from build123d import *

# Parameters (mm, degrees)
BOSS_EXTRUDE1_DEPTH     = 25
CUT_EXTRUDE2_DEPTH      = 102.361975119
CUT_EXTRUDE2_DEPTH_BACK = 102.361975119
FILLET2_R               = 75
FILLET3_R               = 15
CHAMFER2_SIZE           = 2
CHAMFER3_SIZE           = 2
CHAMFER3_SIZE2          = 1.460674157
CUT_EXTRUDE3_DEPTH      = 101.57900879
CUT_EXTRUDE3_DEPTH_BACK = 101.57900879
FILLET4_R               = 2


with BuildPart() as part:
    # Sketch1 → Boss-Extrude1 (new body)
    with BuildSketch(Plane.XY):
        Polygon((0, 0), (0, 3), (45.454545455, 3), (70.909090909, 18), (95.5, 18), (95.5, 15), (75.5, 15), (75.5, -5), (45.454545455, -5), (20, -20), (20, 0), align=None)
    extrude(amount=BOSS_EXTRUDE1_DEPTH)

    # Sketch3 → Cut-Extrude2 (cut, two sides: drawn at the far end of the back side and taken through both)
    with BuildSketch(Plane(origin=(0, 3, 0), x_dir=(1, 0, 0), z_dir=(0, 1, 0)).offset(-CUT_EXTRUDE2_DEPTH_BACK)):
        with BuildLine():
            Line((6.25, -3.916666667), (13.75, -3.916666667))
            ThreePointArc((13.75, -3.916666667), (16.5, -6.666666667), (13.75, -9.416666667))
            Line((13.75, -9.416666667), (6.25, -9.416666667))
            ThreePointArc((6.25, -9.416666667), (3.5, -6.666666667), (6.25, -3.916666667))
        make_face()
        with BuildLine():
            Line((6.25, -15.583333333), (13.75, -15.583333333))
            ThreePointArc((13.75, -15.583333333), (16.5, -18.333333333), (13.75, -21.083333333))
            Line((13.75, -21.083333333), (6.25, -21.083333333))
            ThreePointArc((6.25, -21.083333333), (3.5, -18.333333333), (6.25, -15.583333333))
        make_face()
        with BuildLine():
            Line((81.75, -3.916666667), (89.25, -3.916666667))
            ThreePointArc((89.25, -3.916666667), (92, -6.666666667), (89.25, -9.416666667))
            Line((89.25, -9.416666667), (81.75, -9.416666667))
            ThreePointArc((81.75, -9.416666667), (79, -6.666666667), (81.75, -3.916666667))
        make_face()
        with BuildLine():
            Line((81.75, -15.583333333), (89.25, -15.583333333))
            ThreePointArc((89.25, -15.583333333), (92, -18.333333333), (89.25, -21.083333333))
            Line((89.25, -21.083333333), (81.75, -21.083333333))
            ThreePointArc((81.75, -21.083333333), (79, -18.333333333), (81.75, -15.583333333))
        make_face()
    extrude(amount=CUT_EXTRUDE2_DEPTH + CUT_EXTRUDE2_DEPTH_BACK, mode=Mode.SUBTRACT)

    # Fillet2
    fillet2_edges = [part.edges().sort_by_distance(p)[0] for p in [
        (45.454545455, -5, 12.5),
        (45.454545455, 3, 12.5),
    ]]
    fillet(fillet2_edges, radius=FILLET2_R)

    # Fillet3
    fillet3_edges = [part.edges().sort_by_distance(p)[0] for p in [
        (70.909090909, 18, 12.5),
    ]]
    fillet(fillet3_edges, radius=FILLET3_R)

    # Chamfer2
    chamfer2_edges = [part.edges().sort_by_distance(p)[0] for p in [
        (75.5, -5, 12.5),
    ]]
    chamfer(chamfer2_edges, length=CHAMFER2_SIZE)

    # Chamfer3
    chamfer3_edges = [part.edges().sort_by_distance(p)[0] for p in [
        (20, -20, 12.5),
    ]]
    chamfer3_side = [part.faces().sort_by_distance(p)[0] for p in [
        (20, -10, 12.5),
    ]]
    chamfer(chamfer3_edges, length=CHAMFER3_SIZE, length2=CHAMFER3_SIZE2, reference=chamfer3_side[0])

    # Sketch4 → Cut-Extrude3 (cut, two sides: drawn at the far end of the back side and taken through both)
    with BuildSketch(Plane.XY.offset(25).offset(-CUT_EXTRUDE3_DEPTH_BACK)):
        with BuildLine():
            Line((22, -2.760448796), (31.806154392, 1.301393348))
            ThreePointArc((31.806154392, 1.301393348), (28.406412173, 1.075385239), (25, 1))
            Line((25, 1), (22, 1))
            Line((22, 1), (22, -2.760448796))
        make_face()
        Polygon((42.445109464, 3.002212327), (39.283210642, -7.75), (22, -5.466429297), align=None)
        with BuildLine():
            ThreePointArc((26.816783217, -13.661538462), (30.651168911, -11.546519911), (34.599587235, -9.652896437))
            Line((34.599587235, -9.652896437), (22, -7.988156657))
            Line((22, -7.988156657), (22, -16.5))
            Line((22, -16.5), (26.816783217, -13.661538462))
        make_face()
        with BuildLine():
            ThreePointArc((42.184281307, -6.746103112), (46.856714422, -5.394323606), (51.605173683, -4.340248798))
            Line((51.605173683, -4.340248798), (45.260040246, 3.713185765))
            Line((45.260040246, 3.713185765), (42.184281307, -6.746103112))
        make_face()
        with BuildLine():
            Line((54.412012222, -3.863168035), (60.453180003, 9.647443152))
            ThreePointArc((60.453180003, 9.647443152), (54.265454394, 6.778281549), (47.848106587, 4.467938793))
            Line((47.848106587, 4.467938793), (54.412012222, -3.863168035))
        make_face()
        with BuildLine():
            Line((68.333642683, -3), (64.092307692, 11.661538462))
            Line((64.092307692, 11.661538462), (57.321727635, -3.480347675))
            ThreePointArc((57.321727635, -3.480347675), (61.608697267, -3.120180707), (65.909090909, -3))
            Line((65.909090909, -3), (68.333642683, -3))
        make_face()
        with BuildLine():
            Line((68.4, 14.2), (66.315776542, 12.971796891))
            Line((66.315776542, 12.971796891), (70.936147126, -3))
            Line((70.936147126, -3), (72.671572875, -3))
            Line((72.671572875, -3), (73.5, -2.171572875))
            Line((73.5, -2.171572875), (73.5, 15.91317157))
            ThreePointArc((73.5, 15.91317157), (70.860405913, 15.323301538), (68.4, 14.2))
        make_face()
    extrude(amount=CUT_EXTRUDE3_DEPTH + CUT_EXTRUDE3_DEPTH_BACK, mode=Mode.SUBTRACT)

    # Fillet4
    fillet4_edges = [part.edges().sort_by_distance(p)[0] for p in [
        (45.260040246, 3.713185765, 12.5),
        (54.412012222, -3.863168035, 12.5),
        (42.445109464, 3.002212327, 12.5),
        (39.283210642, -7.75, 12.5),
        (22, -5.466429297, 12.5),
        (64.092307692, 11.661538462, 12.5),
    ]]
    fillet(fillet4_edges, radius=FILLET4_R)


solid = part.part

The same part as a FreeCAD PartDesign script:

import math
import FreeCAD as App
import Part
import Sketcher
Q = App.Units.Quantity


def edges_at(feature, points):
    """Names of the edges that pass closest to the given points."""
    edges = feature.Shape.Edges
    near = lambda p: min(range(len(edges)), key=lambda i: edges[i].distToShape(Part.Vertex(*p))[0])
    return sorted({f"Edge{near(p) + 1}" for p in points})

doc = App.newDocument("Part")
body = doc.addObject("PartDesign::Body", "Body")

sketch1 = doc.addObject("Sketcher::SketchObject", "Sketch")
body.addObject(sketch1)
sketch1.AttachmentSupport = (doc.XY_Plane, [""])
sketch1.MapMode = "FlatFace"
sketch1.addGeometry([
    Part.LineSegment(App.Vector(0, 3, 0), App.Vector(0, 0, 0)),
    Part.LineSegment(App.Vector(0, 0, 0), App.Vector(20, 0, 0)),
    Part.LineSegment(App.Vector(20, 0, 0), App.Vector(20, -20, 0)),
    Part.LineSegment(App.Vector(20, -20, 0), App.Vector(45.5, -5, 0)),
    Part.LineSegment(App.Vector(45.5, -5, 0), App.Vector(75.5, -5, 0)),
    Part.LineSegment(App.Vector(75.5, -5, 0), App.Vector(75.5, 15, 0)),
    Part.LineSegment(App.Vector(75.5, 15, 0), App.Vector(95.5, 15, 0)),
    Part.LineSegment(App.Vector(95.5, 15, 0), App.Vector(95.5, 18, 0)),
    Part.LineSegment(App.Vector(95.5, 18, 0), App.Vector(70.9, 18, 0)),
    Part.LineSegment(App.Vector(70.9, 18, 0), App.Vector(45.5, 3, 0)),
    Part.LineSegment(App.Vector(45.5, 3, 0), App.Vector(0, 3, 0)),
], False)
sketch1.addConstraint([
    Sketcher.Constraint("Coincident", 0, 2, 1, 1),
    Sketcher.Constraint("Coincident", 1, 2, 2, 1),
    Sketcher.Constraint("Coincident", 2, 2, 3, 1),
    Sketcher.Constraint("Coincident", 3, 2, 4, 1),
    Sketcher.Constraint("Coincident", 4, 2, 5, 1),
    Sketcher.Constraint("Coincident", 5, 2, 6, 1),
    Sketcher.Constraint("Coincident", 6, 2, 7, 1),
    Sketcher.Constraint("Coincident", 7, 2, 8, 1),
    Sketcher.Constraint("Coincident", 8, 2, 9, 1),
    Sketcher.Constraint("Coincident", 9, 2, 10, 1),
    Sketcher.Constraint("Coincident", 10, 2, 0, 1),
    Sketcher.Constraint("Vertical", 0),
    Sketcher.Constraint("Horizontal", 1),
    Sketcher.Constraint("Vertical", 2),
    Sketcher.Constraint("Horizontal", 4),
    Sketcher.Constraint("Vertical", 5),
    Sketcher.Constraint("Horizontal", 6),
    Sketcher.Constraint("Vertical", 7),
    Sketcher.Constraint("Horizontal", 8),
    Sketcher.Constraint("Horizontal", 10),
    Sketcher.Constraint("Coincident", 0, 2, -1, 1),
    Sketcher.Constraint("Parallel", 3, 9),
    Sketcher.Constraint("Vertical", 3, 2, 9, 2),
    Sketcher.Constraint("Equal", 1, 6),
    Sketcher.Constraint("Equal", 6, 2),
    Sketcher.Constraint("Equal", 2, 5),
    Sketcher.Constraint("Equal", 0, 7),
    Sketcher.Constraint("DistanceX", 1, 1, 1, 2, 20.0),
    Sketcher.Constraint("DistanceY", 0, 2, 0, 1, 3.0),
    Sketcher.Constraint("DistanceY", 3, 2, -1, 1, 5.0),
    Sketcher.Constraint("DistanceX", -1, 1, 4, 2, 75.5),
    Sketcher.Constraint("DistanceX", 8, 2, 8, 1, 24.590909),
])
pad1 = doc.addObject("PartDesign::Pad", "Pad")
body.addObject(pad1)
pad1.Profile = sketch1
pad1.Length = 25

sketch2 = doc.addObject("Sketcher::SketchObject", "Sketch001")
body.addObject(sketch2)
sketch2.AttachmentSupport = (doc.XZ_Plane, [""])
sketch2.MapMode = "FlatFace"
sketch2.AttachmentOffset = App.Placement(App.Vector(0, 0, -3), App.Rotation())
sketch2.addGeometry([
    Part.LineSegment(App.Vector(13.8, 3.9, 0), App.Vector(6.2, 3.9, 0)),
    Part.ArcOfCircle(Part.Circle(App.Vector(6.2, 6.7, 0), App.Vector(0, 0, 1), 2.8), math.radians(90), math.radians(270)),
    Part.LineSegment(App.Vector(6.2, 9.4, 0), App.Vector(13.8, 9.4, 0)),
    Part.ArcOfCircle(Part.Circle(App.Vector(13.8, 6.7, 0), App.Vector(0, 0, 1), 2.8), math.radians(-90), math.radians(90)),
    Part.LineSegment(App.Vector(13.8, 15.6, 0), App.Vector(6.2, 15.6, 0)),
    Part.ArcOfCircle(Part.Circle(App.Vector(6.2, 18.3, 0), App.Vector(0, 0, 1), 2.8), math.radians(90), math.radians(270)),
    Part.LineSegment(App.Vector(6.2, 21.1, 0), App.Vector(13.8, 21.1, 0)),
    Part.ArcOfCircle(Part.Circle(App.Vector(13.8, 18.3, 0), App.Vector(0, 0, 1), 2.8), math.radians(-90), math.radians(90)),
    Part.LineSegment(App.Vector(89.2, 3.9, 0), App.Vector(81.8, 3.9, 0)),
    Part.ArcOfCircle(Part.Circle(App.Vector(81.8, 6.7, 0), App.Vector(0, 0, 1), 2.8), math.radians(90), math.radians(270)),
    Part.LineSegment(App.Vector(81.8, 9.4, 0), App.Vector(89.2, 9.4, 0)),
    Part.ArcOfCircle(Part.Circle(App.Vector(89.2, 6.7, 0), App.Vector(0, 0, 1), 2.8), math.radians(-90), math.radians(90)),
    Part.LineSegment(App.Vector(89.2, 15.6, 0), App.Vector(81.8, 15.6, 0)),
    Part.ArcOfCircle(Part.Circle(App.Vector(81.8, 18.3, 0), App.Vector(0, 0, 1), 2.8), math.radians(90), math.radians(270)),
    Part.LineSegment(App.Vector(81.8, 21.1, 0), App.Vector(89.2, 21.1, 0)),
    Part.ArcOfCircle(Part.Circle(App.Vector(89.2, 18.3, 0), App.Vector(0, 0, 1), 2.8), math.radians(-90), math.radians(90)),
], False)
sketch2.addConstraint([
    Sketcher.Constraint("Tangent", 0, 2, 1, 2),
    Sketcher.Constraint("Tangent", 1, 1, 2, 1),
    Sketcher.Constraint("Tangent", 2, 2, 3, 2),
    Sketcher.Constraint("Tangent", 3, 1, 0, 1),
    Sketcher.Constraint("Tangent", 4, 2, 5, 2),
    Sketcher.Constraint("Tangent", 5, 1, 6, 1),
    Sketcher.Constraint("Tangent", 6, 2, 7, 2),
    Sketcher.Constraint("Tangent", 7, 1, 4, 1),
    Sketcher.Constraint("Tangent", 8, 2, 9, 2),
    Sketcher.Constraint("Tangent", 9, 1, 10, 1),
    Sketcher.Constraint("Tangent", 10, 2, 11, 2),
    Sketcher.Constraint("Tangent", 11, 1, 8, 1),
    Sketcher.Constraint("Tangent", 12, 2, 13, 2),
    Sketcher.Constraint("Tangent", 13, 1, 14, 1),
    Sketcher.Constraint("Tangent", 14, 2, 15, 2),
    Sketcher.Constraint("Tangent", 15, 1, 12, 1),
    Sketcher.Constraint("Horizontal", 0),
    Sketcher.Constraint("Horizontal", 2),
    Sketcher.Constraint("Horizontal", 4),
    Sketcher.Constraint("Horizontal", 6),
    Sketcher.Constraint("Horizontal", 8),
    Sketcher.Constraint("Horizontal", 10),
    Sketcher.Constraint("Horizontal", 12),
    Sketcher.Constraint("Horizontal", 14),
    Sketcher.Constraint("Equal", 3, 5),
    Sketcher.Constraint("Equal", 7, 9),
    Sketcher.Constraint("Equal", 11, 13),
    Sketcher.Constraint("Horizontal", 3, 3, 9, 3),
    Sketcher.Constraint("Horizontal", 7, 3, 13, 3),
    Sketcher.Constraint("Vertical", 1, 3, 5, 3),
    Sketcher.Constraint("Vertical", 3, 3, 7, 3),
    Sketcher.Constraint("Vertical", 9, 3, 13, 3),
    Sketcher.Constraint("Vertical", 11, 3, 15, 3),
    Sketcher.Constraint("Equal", 6, 8),
    Sketcher.Constraint("Radius", 1, 2.75),
    Sketcher.Constraint("DistanceX", 0, 2, 0, 1, 7.5),
    Sketcher.Constraint("DistanceX", 3, 3, 9, 3, 68.0),
    Sketcher.Constraint("DistanceX", -1, 1, 1, 3, 6.25),
    Sketcher.Constraint("DistanceY", -1, 1, 1, 3, 6.666667),
    Sketcher.Constraint("DistanceY", -1, 1, 5, 3, 18.333333),
])
pocket1 = doc.addObject("PartDesign::Pocket", "Pocket")
body.addObject(pocket1)
pocket1.Profile = sketch2
pocket1.Type = "ThroughAll"
pocket1.Midplane = True
doc.recompute()

fillet = doc.addObject("PartDesign::Fillet", "Fillet")
body.addObject(fillet)
fillet.Base = (pocket1, edges_at(pocket1, [(45.455, -5, 12.5), (45.455, 3, 12.5)]))
fillet.Radius = 75
doc.recompute()

fillet2 = doc.addObject("PartDesign::Fillet", "Fillet001")
body.addObject(fillet2)
fillet2.Base = (fillet, edges_at(fillet, [(70.909, 18, 12.5)]))
fillet2.Radius = 15
doc.recompute()

chamfer = doc.addObject("PartDesign::Chamfer", "Chamfer")
body.addObject(chamfer)
chamfer.Base = (fillet2, edges_at(fillet2, [(75.5, -5, 12.5)]))
chamfer.Size = 2
doc.recompute()

chamfer2 = doc.addObject("PartDesign::Chamfer", "Chamfer001")
body.addObject(chamfer2)
chamfer2.Base = (chamfer, edges_at(chamfer, [(20, -20, 12.5)]))
chamfer2.ChamferType = "Two distances"
chamfer2.Size = 2
chamfer2.Size2 = 1.460674
chamfer2.FlipDirection = True

sketch3 = doc.addObject("Sketcher::SketchObject", "Sketch002")
body.addObject(sketch3)
sketch3.AttachmentSupport = (doc.XY_Plane, [""])
sketch3.MapMode = "FlatFace"
sketch3.AttachmentOffset = App.Placement(App.Vector(0, 0, 25), App.Rotation())
sketch3.addGeometry([
    Part.LineSegment(App.Vector(22, -2.8, 0), App.Vector(31.8, 1.3, 0)),
    Part.ArcOfCircle(Part.Circle(App.Vector(25, 78, 0), App.Vector(0, 0, 1), 77), math.radians(-90), math.radians(-84.93)),
    Part.LineSegment(App.Vector(25, 1, 0), App.Vector(22, 1, 0)),
    Part.LineSegment(App.Vector(22, 1, 0), App.Vector(22, -2.8, 0)),
    Part.LineSegment(App.Vector(39.3, -7.8, 0), App.Vector(42.4, 3, 0)),
    Part.LineSegment(App.Vector(42.4, 3, 0), App.Vector(22, -5.5, 0)),
    Part.LineSegment(App.Vector(22, -5.5, 0), App.Vector(39.3, -7.8, 0)),
    Part.ArcOfCircle(Part.Circle(App.Vector(65.9, -80, 0), App.Vector(0, 0, 1), 77), math.radians(113.99), math.radians(120.51)),
    Part.LineSegment(App.Vector(34.6, -9.7, 0), App.Vector(22, -8, 0)),
    Part.LineSegment(App.Vector(22, -8, 0), App.Vector(22, -16.5, 0)),
    Part.LineSegment(App.Vector(22, -16.5, 0), App.Vector(26.8, -13.7, 0)),
    Part.ArcOfCircle(Part.Circle(App.Vector(65.9, -80, 0), App.Vector(0, 0, 1), 77), math.radians(100.71), math.radians(107.95)),
    Part.LineSegment(App.Vector(51.6, -4.3, 0), App.Vector(45.3, 3.7, 0)),
    Part.LineSegment(App.Vector(45.3, 3.7, 0), App.Vector(42.2, -6.7, 0)),
    Part.LineSegment(App.Vector(54.4, -3.9, 0), App.Vector(60.5, 9.6, 0)),
    Part.ArcOfCircle(Part.Circle(App.Vector(25, 78, 0), App.Vector(0, 0, 1), 77), math.radians(-72.74), math.radians(-62.59)),
    Part.LineSegment(App.Vector(47.8, 4.5, 0), App.Vector(54.4, -3.9, 0)),
    Part.LineSegment(App.Vector(68.3, -3, 0), App.Vector(64.1, 11.7, 0)),
    Part.LineSegment(App.Vector(64.1, 11.7, 0), App.Vector(57.3, -3.5, 0)),
    Part.ArcOfCircle(Part.Circle(App.Vector(65.9, -80, 0), App.Vector(0, 0, 1), 77), math.radians(90), math.radians(96.4)),
    Part.LineSegment(App.Vector(65.9, -3, 0), App.Vector(68.3, -3, 0)),
    Part.LineSegment(App.Vector(68.4, 14.2, 0), App.Vector(66.3, 13, 0)),
    Part.LineSegment(App.Vector(66.3, 13, 0), App.Vector(70.9, -3, 0)),
    Part.LineSegment(App.Vector(70.9, -3, 0), App.Vector(72.7, -3, 0)),
    Part.LineSegment(App.Vector(72.7, -3, 0), App.Vector(73.5, -2.2, 0)),
    Part.LineSegment(App.Vector(73.5, -2.2, 0), App.Vector(73.5, 15.9, 0)),
    Part.ArcOfCircle(Part.Circle(App.Vector(75, 3, 0), App.Vector(0, 0, 1), 13), math.radians(97), math.radians(121)),
], False)
sketch3.addConstraint([
    Sketcher.Constraint("Coincident", 0, 2, 1, 2),
    Sketcher.Constraint("Tangent", 1, 1, 2, 1),
    Sketcher.Constraint("Coincident", 2, 2, 3, 1),
    Sketcher.Constraint("Coincident", 3, 2, 0, 1),
    Sketcher.Constraint("Coincident", 4, 2, 5, 1),
    Sketcher.Constraint("Coincident", 5, 2, 6, 1),
    Sketcher.Constraint("Coincident", 6, 2, 4, 1),
    Sketcher.Constraint("Coincident", 7, 1, 8, 1),
    Sketcher.Constraint("Coincident", 8, 2, 9, 1),
    Sketcher.Constraint("Coincident", 9, 2, 10, 1),
    Sketcher.Constraint("Tangent", 10, 2, 7, 2),
    Sketcher.Constraint("Coincident", 11, 1, 12, 1),
    Sketcher.Constraint("Coincident", 12, 2, 13, 1),
    Sketcher.Constraint("Coincident", 13, 2, 11, 2),
    Sketcher.Constraint("Coincident", 14, 2, 15, 2),
    Sketcher.Constraint("Coincident", 15, 1, 16, 1),
    Sketcher.Constraint("Coincident", 16, 2, 14, 1),
    Sketcher.Constraint("Coincident", 17, 2, 18, 1),
    Sketcher.Constraint("Coincident", 18, 2, 19, 2),
    Sketcher.Constraint("Tangent", 19, 1, 20, 1),
    Sketcher.Constraint("Coincident", 20, 2, 17, 1),
    Sketcher.Constraint("Coincident", 21, 2, 22, 1),
    Sketcher.Constraint("Coincident", 22, 2, 23, 1),
    Sketcher.Constraint("Coincident", 23, 2, 24, 1),
    Sketcher.Constraint("Coincident", 24, 2, 25, 1),
    Sketcher.Constraint("Coincident", 25, 2, 26, 1),
    Sketcher.Constraint("Tangent", 26, 2, 21, 1),
    Sketcher.Constraint("Horizontal", 2),
    Sketcher.Constraint("Vertical", 3),
    Sketcher.Constraint("Vertical", 9),
    Sketcher.Constraint("Horizontal", 20),
    Sketcher.Constraint("Horizontal", 23),
    Sketcher.Constraint("Vertical", 25),
    Sketcher.Constraint("Coincident", 11, 3, 7, 3),
    Sketcher.Constraint("Coincident", 15, 3, 1, 3),
    Sketcher.Constraint("Coincident", 19, 3, 7, 3),
    Sketcher.Constraint("Equal", 1, 7),
    Sketcher.Constraint("Equal", 7, 11),
    Sketcher.Constraint("Equal", 11, 15),
    Sketcher.Constraint("Equal", 15, 19),
    Sketcher.Constraint("Parallel", 0, 5),
    Sketcher.Constraint("Parallel", 6, 8),
    Sketcher.Constraint("Parallel", 4, 13),
    Sketcher.Constraint("Parallel", 12, 16),
    Sketcher.Constraint("Parallel", 14, 18),
    Sketcher.Constraint("Parallel", 10, 21),
    Sketcher.Constraint("Parallel", 17, 22),
    Sketcher.Constraint("Horizontal", 20, 2, 22, 2),
    Sketcher.Constraint("Vertical", 3, 2, 5, 2),
    Sketcher.Constraint("Vertical", 5, 2, 8, 2),
    Sketcher.Constraint("Radius", 1, 77.0),
    Sketcher.Constraint("Radius", 26, 13.0),
    Sketcher.Constraint("DistanceX", 2, 2, 2, 1, 3.0),
    Sketcher.Constraint("Angle", 24, Q("45 deg")),
    Sketcher.Constraint("DistanceX", -1, 1, 1, 3, 25.0),
    Sketcher.Constraint("DistanceY", -1, 1, 1, 3, 78.0),
    Sketcher.Constraint("DistanceY", 7, 3, -1, 1, 80.0),
    Sketcher.Constraint("DistanceX", -1, 1, 26, 3, 75.0),
    Sketcher.Constraint("DistanceY", -1, 1, 26, 3, 3.0),
    Sketcher.Constraint("Angle", 0, Q("22.5 deg")),
    Sketcher.Constraint("DistanceY", 9, 2, -1, 1, 16.5),
    Sketcher.Constraint("DistanceX", -1, 1, 24, 2, 73.5),
    Sketcher.Constraint("DistanceX", -1, 1, 26, 2, 68.4),
    Sketcher.Constraint("DistanceY", 6, 2, -1, 1, 7.75),
    Sketcher.Constraint("DistanceX", 20, 1, 20, 2, 2.424552),
    Sketcher.Constraint("DistanceY", 3, 2, 3, 1, 3.760449),
    Sketcher.Constraint("DistanceX", 6, 2, 4, 2, 3.161899),
    Sketcher.Constraint("DistanceX", 13, 2, 14, 2, 18.268899),
    Sketcher.Constraint("DistanceX", 15, 1, 17, 2, 16.244201),
    Sketcher.Constraint("DistanceY", 15, 1, 17, 2, 7.1936),
    Sketcher.Constraint("DistanceY", 11, 1, 18, 2, 0.859901),
    Sketcher.Constraint("Distance", 6, 17.433418),
    Sketcher.Constraint("Distance", 8, 12.70909),
    Sketcher.Constraint("Distance", 14, 14.799741),
    Sketcher.Constraint("Distance", 22, 16.626669),
    Sketcher.Constraint("DistanceX", 23, 1, 23, 2, 1.735426),
    Sketcher.Constraint("DistanceY", 9, 2, 9, 1, 8.511843),
    Sketcher.Constraint("DistanceY", 25, 1, 25, 2, 18.084744),
    Sketcher.Constraint("DistanceY", 11, 1, -1, 1, 4.340249),
    Sketcher.Constraint("DistanceX", -1, 1, 12, 2, 45.26004),
])
pocket2 = doc.addObject("PartDesign::Pocket", "Pocket001")
body.addObject(pocket2)
pocket2.Profile = sketch3
pocket2.Type = "ThroughAll"
pocket2.Midplane = True
doc.recompute()

fillet3 = doc.addObject("PartDesign::Fillet", "Fillet002")
body.addObject(fillet3)
fillet3.Base = (pocket2, edges_at(pocket2, [
    (45.26, 3.713, 12.5),
    (54.412, -3.863, 12.5),
    (42.445, 3.002, 12.5),
    (39.283, -7.75, 12.5),
    (22, -5.466, 12.5),
    (64.092, 11.662, 12.5),
]))
fillet3.Radius = 2

doc.recompute()
